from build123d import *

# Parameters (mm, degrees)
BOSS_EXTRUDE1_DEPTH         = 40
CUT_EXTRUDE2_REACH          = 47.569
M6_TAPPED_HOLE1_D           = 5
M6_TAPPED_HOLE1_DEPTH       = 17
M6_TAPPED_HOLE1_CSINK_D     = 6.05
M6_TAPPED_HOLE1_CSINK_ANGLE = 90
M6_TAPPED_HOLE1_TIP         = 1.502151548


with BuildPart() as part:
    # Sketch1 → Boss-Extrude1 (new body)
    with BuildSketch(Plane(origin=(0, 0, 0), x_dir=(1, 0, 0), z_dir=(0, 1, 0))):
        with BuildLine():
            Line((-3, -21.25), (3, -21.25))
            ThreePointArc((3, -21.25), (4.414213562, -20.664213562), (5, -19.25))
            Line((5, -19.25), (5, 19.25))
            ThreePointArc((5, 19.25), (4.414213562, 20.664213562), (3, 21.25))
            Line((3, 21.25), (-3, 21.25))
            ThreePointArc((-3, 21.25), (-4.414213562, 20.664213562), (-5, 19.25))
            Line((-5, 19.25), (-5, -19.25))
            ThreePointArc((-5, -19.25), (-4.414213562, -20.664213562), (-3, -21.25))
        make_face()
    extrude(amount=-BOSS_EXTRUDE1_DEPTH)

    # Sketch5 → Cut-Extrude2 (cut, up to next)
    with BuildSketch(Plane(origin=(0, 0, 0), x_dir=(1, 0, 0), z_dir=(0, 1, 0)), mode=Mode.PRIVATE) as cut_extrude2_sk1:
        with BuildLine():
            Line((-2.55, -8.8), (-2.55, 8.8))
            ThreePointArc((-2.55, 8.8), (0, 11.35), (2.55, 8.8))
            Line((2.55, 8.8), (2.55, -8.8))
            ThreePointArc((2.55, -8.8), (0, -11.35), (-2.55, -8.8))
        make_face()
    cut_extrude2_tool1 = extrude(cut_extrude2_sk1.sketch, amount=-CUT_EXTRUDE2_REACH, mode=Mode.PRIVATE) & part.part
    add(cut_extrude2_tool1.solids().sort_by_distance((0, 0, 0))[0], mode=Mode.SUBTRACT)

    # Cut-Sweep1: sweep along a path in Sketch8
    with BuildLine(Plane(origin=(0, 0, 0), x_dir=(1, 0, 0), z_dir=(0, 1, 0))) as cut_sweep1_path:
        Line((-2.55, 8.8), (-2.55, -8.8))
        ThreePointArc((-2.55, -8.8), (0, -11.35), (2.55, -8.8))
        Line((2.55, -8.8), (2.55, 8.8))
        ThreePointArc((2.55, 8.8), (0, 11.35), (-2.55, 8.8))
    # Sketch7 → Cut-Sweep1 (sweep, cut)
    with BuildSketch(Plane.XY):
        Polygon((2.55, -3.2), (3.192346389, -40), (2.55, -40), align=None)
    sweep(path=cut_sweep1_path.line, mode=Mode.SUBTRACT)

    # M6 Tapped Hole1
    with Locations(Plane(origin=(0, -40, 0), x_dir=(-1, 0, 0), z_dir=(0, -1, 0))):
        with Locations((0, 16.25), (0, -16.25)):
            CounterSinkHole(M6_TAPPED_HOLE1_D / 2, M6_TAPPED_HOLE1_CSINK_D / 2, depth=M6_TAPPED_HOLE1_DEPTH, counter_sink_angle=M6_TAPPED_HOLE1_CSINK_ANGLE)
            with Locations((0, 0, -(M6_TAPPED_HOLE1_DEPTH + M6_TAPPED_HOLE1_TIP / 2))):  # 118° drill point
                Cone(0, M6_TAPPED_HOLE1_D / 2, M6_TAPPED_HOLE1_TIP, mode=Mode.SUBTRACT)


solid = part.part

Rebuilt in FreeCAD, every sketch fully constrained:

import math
import FreeCAD as App
import Part
import Sketcher
from FreeCAD import Vector
Q = App.Units.Quantity


def add_polygon(sketch, points):
    """Adds a closed chain of lines whose ends are joined by coincident constraints."""
    first, n = sketch.GeometryCount, len(points)
    for a, b in zip(points, points[1:] + points[:1]):
        sketch.addGeometry(Part.LineSegment(App.Vector(*a, 0), App.Vector(*b, 0)), False)
    for i in range(n):
        sketch.addConstraint(Sketcher.Constraint("Coincident", first + i, 2, first + (i + 1) % n, 1))

doc = App.newDocument("Part")
body = doc.addObject("PartDesign::Body", "Body")

# Sketch on XZ plane
sketch1 = body.newObject("Sketcher::SketchObject", "Sketch")
sketch1.AttachmentSupport = (doc.getObject("XZ_Plane"), [""])
sketch1.MapMode = "FlatFace"
sketch1.addGeometry([
    Part.LineSegment(Vector(-3, 21.2, 0), Vector(3, 21.2, 0)),  # 0
    Part.ArcOfCircle(Part.Circle(Vector(3, 19.2, 0), Vector(0, 0, 1), 2), math.radians(0), math.radians(90)),  # 1
    Part.LineSegment(Vector(5, 19.2, 0), Vector(5, -19.2, 0)),  # 2
    Part.ArcOfCircle(Part.Circle(Vector(3, -19.2, 0), Vector(0, 0, 1), 2), math.radians(-90), math.radians(0)),  # 3
    Part.LineSegment(Vector(3, -21.2, 0), Vector(-3, -21.2, 0)),  # 4
    Part.ArcOfCircle(Part.Circle(Vector(-3, -19.2, 0), Vector(0, 0, 1), 2), math.radians(-180), math.radians(-90)),  # 5
    Part.LineSegment(Vector(-5, -19.2, 0), Vector(-5, 19.2, 0)),  # 6
    Part.ArcOfCircle(Part.Circle(Vector(-3, 19.2, 0), Vector(0, 0, 1), 2), math.radians(90), math.radians(180)),  # 7
], False)
sketch1.addConstraint([
    Sketcher.Constraint("Tangent", 0, 2, 1, 2),
    Sketcher.Constraint("Tangent", 1, 1, 2, 1),
    Sketcher.Constraint("Tangent", 2, 2, 3, 2),
    Sketcher.Constraint("Tangent", 3, 1, 4, 1),
    Sketcher.Constraint("Tangent", 4, 2, 5, 2),
    Sketcher.Constraint("Tangent", 5, 1, 6, 1),
    Sketcher.Constraint("Tangent", 6, 2, 7, 2),
    Sketcher.Constraint("Tangent", 7, 1, 0, 1),
    Sketcher.Constraint("Horizontal", 0),
    Sketcher.Constraint("Vertical", 2),
    Sketcher.Constraint("Horizontal", 4),
    Sketcher.Constraint("Vertical", 6),
    Sketcher.Constraint("Equal", 1, 3),
    Sketcher.Constraint("Equal", 3, 5),
    Sketcher.Constraint("Equal", 5, 7),
    Sketcher.Constraint("Symmetric", 1, 3, 5, 3, -1, 1),
    Sketcher.Constraint("Radius", 1, Q("2 mm")),
    Sketcher.Constraint("DistanceX", 0, 1, 0, 2, Q("6 mm")),
    Sketcher.Constraint("DistanceY", 2, 2, 2, 1, Q("38.5 mm")),
])
pad1 = body.newObject("PartDesign::Pad", "Pad")
pad1.Profile = sketch1
pad1.Length = 40

# Sketch on XZ plane
sketch2 = body.newObject("Sketcher::SketchObject", "Sketch001")
sketch2.AttachmentSupport = (doc.getObject("XZ_Plane"), [""])
sketch2.MapMode = "FlatFace"
sketch2.addGeometry([
    Part.LineSegment(Vector(-2.5, -8.8, 0), Vector(-2.5, 8.8, 0)),
    Part.ArcOfCircle(Part.Circle(Vector(0, 8.8, 0), Vector(0, 0, 1), 2.5), math.radians(0), math.radians(180)),
    Part.LineSegment(Vector(2.5, 8.8, 0), Vector(2.5, -8.8, 0)),
    Part.ArcOfCircle(Part.Circle(Vector(0, -8.8, 0), Vector(0, 0, 1), 2.5), math.radians(180), math.radians(360)),
], False)
sketch2.addConstraint([
    Sketcher.Constraint("Tangent", 0, 2, 1, 2),
    Sketcher.Constraint("Tangent", 1, 1, 2, 1),
    Sketcher.Constraint("Tangent", 2, 2, 3, 2),
    Sketcher.Constraint("Tangent", 3, 1, 0, 1),
    Sketcher.Constraint("Vertical", 0),
    Sketcher.Constraint("Vertical", 2),
    Sketcher.Constraint("Symmetric", 1, 3, 3, 3, -1, 1),
    Sketcher.Constraint("Radius", 1, Q("2.55 mm")),
    Sketcher.Constraint("DistanceY", 0, 1, 0, 2, Q("17.6 mm")),
])
pocket1 = body.newObject("PartDesign::Pocket", "Pocket")
pocket1.Profile = sketch2
pocket1.Type = "UpToFirst"
pocket1.Reversed = True

# Sketch on XY plane
sketch3 = body.newObject("Sketcher::SketchObject", "Sketch002")
sketch3.AttachmentSupport = (doc.getObject("XY_Plane"), [""])
sketch3.MapMode = "FlatFace"
add_polygon(sketch3, [(3.2, -40), (2.5, -3.2), (2.5, -40)])  # lines 0-2
sketch3.addConstraint([
    Sketcher.Constraint("Vertical", 1),
    Sketcher.Constraint("Horizontal", 2),
    Sketcher.Constraint("Angle", 0, Q("91 deg")),
    Sketcher.Constraint("DistanceY", 1, 2, 1, 1, Q("36.8 mm")),
    Sketcher.Constraint("DistanceY", 1, 2, -1, 1, Q("40 mm")),
    Sketcher.Constraint("DistanceX", -1, 1, 0, 2, Q("2.55 mm")),
])

# Sketch on XZ plane
sketch4 = body.newObject("Sketcher::SketchObject", "Sketch003")
sketch4.AttachmentSupport = (doc.getObject("XZ_Plane"), [""])
sketch4.MapMode = "FlatFace"
sketch4.addGeometry([
    Part.LineSegment(Vector(-2.5, -8.8, 0), Vector(-2.5, 8.8, 0)),
    Part.ArcOfCircle(Part.Circle(Vector(0, 8.8, 0), Vector(0, 0, 1), 2.5), math.radians(0), math.radians(180)),
    Part.LineSegment(Vector(2.5, 8.8, 0), Vector(2.5, -8.8, 0)),
    Part.ArcOfCircle(Part.Circle(Vector(0, -8.8, 0), Vector(0, 0, 1), 2.5), math.radians(180), math.radians(360)),
], False)
sketch4.addConstraint([
    Sketcher.Constraint("Tangent", 0, 2, 1, 2),
    Sketcher.Constraint("Tangent", 1, 1, 2, 1),
    Sketcher.Constraint("Tangent", 2, 2, 3, 2),
    Sketcher.Constraint("Tangent", 3, 1, 0, 1),
    Sketcher.Constraint("Vertical", 0),
    Sketcher.Constraint("Vertical", 2),
    Sketcher.Constraint("Symmetric", 1, 3, 3, 3, -1, 1),
    Sketcher.Constraint("Radius", 1, Q("2.55 mm")),
    Sketcher.Constraint("DistanceY", 0, 1, 0, 2, Q("17.6 mm")),
])
doc.recompute()

subtractivepipe = body.newObject("PartDesign::SubtractivePipe", "SubtractivePipe")
subtractivepipe.Profile = sketch3
subtractivepipe.Spine = (sketch4, ["Edge1", "Edge2", "Edge3", "Edge4"])

# Sketch on XZ plane
sketch5 = body.newObject("Sketcher::SketchObject", "Sketch004")
sketch5.AttachmentSupport = (doc.getObject("XZ_Plane"), [""])
sketch5.MapMode = "FlatFace"
sketch5.AttachmentOffset = App.Placement(Vector(0, 0, 40), App.Rotation())
sketch5.addGeometry([
    Part.Circle(Vector(0, -16.2, 0), Vector(0, 0, 1), 2.5),
    Part.Circle(Vector(0, 16.2, 0), Vector(0, 0, 1), 2.5),
], False)
sketch5.addConstraint([
    Sketcher.Constraint("Equal", 0, 1),
    Sketcher.Constraint("Symmetric", 0, 3, 1, 3, -1, 1),
    Sketcher.Constraint("PointOnObject", 0, 3, -2),
    Sketcher.Constraint("Diameter", 0, Q("5 mm")),
    Sketcher.Constraint("DistanceY", 0, 3, 1, 3, Q("32.5 mm")),
])
doc.recompute()
hole = body.newObject("PartDesign::Hole", "Hole")
hole.Profile = sketch5
hole.ThreadType = "None"
hole.Diameter = 5
hole.DepthType = "Dimension"
hole.Depth = 17
hole.DrillPoint = "Angled"
hole.DrillPointAngle = 118
hole.HoleCutType = "Countersink"
hole.HoleCutDiameter = 6.05
hole.HoleCutCountersinkAngle = 90

doc.recompute()
